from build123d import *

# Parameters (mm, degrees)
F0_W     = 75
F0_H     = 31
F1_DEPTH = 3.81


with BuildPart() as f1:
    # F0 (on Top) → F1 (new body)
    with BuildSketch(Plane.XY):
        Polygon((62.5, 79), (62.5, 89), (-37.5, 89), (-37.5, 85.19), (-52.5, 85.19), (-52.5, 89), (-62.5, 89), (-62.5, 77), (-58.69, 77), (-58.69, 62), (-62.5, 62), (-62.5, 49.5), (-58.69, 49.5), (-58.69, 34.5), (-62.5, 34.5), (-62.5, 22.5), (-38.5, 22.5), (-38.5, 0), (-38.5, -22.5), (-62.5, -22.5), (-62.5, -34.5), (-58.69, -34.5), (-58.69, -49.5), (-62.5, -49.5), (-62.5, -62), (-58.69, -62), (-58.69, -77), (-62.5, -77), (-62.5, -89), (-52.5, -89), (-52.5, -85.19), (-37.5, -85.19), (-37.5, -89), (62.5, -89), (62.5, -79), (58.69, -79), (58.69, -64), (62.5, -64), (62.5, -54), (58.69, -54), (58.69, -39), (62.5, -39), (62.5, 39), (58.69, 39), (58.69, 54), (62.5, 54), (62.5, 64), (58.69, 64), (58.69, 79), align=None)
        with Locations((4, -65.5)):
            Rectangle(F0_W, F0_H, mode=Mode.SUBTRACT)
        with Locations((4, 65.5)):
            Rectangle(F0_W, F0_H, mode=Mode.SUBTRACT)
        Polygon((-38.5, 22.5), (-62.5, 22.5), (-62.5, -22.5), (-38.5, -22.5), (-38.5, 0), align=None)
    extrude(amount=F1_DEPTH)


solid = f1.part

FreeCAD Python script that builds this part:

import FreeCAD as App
import Part
import Sketcher
from FreeCAD import Vector


def add_polygon(sketch, points):
    """Adds a closed chain of lines whose ends are joined by coincident constraints."""
    first, n = sketch.GeometryCount, len(points)
    for a, b in zip(points, points[1:] + points[:1]):
        sketch.addGeometry(Part.LineSegment(App.Vector(*a, 0), App.Vector(*b, 0)), False)
    for i in range(n):
        sketch.addConstraint(Sketcher.Constraint("Coincident", first + i, 2, first + (i + 1) % n, 1))

doc = App.newDocument("Part")
params = doc.addObject("Spreadsheet::Sheet", "Params")
for row, (alias, value) in enumerate([
    ("sketch1_width", "100 mm"),
    ("sketch1_width2", "15 mm"),
    ("sketch1_width3", "10 mm"),
    ("sketch1_width4", "75 mm"),
    ("sketch1_height", "12 mm"),
    ("pad1_length", "3.81 mm"),
], start=1):
    params.set(f"A{row}", alias)
    params.set(f"B{row}", "=" + value)
    params.setAlias(f"B{row}", alias)

body = doc.addObject("PartDesign::Body", "Body")

sketch1 = body.newObject("Sketcher::SketchObject", "Sketch")
sketch1.AttachmentSupport = (doc.getObject("XY_Plane"), [""])
sketch1.MapMode = "FlatFace"
add_polygon(sketch1, [(62.5, 79), (62.5, 89), (-37.5, 89), (-37.5, 85.2), (-52.5, 85.2), (-52.5, 89), (-62.5, 89), (-62.5, 77), (-58.7, 77), (-58.7, 62), (-62.5, 62), (-62.5, 49.5), (-58.7, 49.5), (-58.7, 34.5), (-62.5, 34.5), (-62.5, -34.5), (-58.7, -34.5), (-58.7, -49.5), (-62.5, -49.5), (-62.5, -62), (-58.7, -62), (-58.7, -77), (-62.5, -77), (-62.5, -89), (-52.5, -89), (-52.5, -85.2), (-37.5, -85.2), (-37.5, -89), (62.5, -89), (62.5, -79), (58.7, -79), (58.7, -64), (62.5, -64), (62.5, -54), (58.7, -54), (58.7, -39), (62.5, -39), (62.5, 39), (58.7, 39), (58.7, 54), (62.5, 54), (62.5, 64), (58.7, 64), (58.7, 79)])
add_polygon(sketch1, [(41.5, -81), (-33.5, -81), (-33.5, -50), (41.5, -50)])
add_polygon(sketch1, [(41.5, 50), (-33.5, 50), (-33.5, 81), (41.5, 81)])
sketch1.addConstraint(Sketcher.Constraint("Vertical", 0))
sketch1.addConstraint(Sketcher.Constraint("Horizontal", 1))
sketch1.addConstraint(Sketcher.Constraint("Vertical", 2))
sketch1.addConstraint(Sketcher.Constraint("Horizontal", 3))
sketch1.addConstraint(Sketcher.Constraint("Vertical", 4))
sketch1.addConstraint(Sketcher.Constraint("Horizontal", 5))
sketch1.addConstraint(Sketcher.Constraint("Vertical", 6))
sketch1.addConstraint(Sketcher.Constraint("Horizontal", 7))
sketch1.addConstraint(Sketcher.Constraint("Vertical", 8))
sketch1.addConstraint(Sketcher.Constraint("Horizontal", 9))
sketch1.addConstraint(Sketcher.Constraint("Vertical", 10))
sketch1.addConstraint(Sketcher.Constraint("Horizontal", 11))
sketch1.addConstraint(Sketcher.Constraint("Vertical", 12))
sketch1.addConstraint(Sketcher.Constraint("Horizontal", 13))
sketch1.addConstraint(Sketcher.Constraint("Vertical", 14))
sketch1.addConstraint(Sketcher.Constraint("Horizontal", 15))
sketch1.addConstraint(Sketcher.Constraint("Vertical", 16))
sketch1.addConstraint(Sketcher.Constraint("Horizontal", 17))
sketch1.addConstraint(Sketcher.Constraint("Vertical", 18))
sketch1.addConstraint(Sketcher.Constraint("Horizontal", 19))
sketch1.addConstraint(Sketcher.Constraint("Vertical", 20))
sketch1.addConstraint(Sketcher.Constraint("Horizontal", 21))
sketch1.addConstraint(Sketcher.Constraint("Vertical", 22))
sketch1.addConstraint(Sketcher.Constraint("Horizontal", 23))
sketch1.addConstraint(Sketcher.Constraint("Vertical", 24))
sketch1.addConstraint(Sketcher.Constraint("Horizontal", 25))
sketch1.addConstraint(Sketcher.Constraint("Vertical", 26))
sketch1.addConstraint(Sketcher.Constraint("Horizontal", 27))
sketch1.addConstraint(Sketcher.Constraint("Vertical", 28))
sketch1.addConstraint(Sketcher.Constraint("Horizontal", 29))
sketch1.addConstraint(Sketcher.Constraint("Vertical", 30))
sketch1.addConstraint(Sketcher.Constraint("Horizontal", 31))
sketch1.addConstraint(Sketcher.Constraint("Vertical", 32))
sketch1.addConstraint(Sketcher.Constraint("Horizontal", 33))
sketch1.addConstraint(Sketcher.Constraint("Vertical", 34))
sketch1.addConstraint(Sketcher.Constraint("Horizontal", 35))
sketch1.addConstraint(Sketcher.Constraint("Vertical", 36))
sketch1.addConstraint(Sketcher.Constraint("Horizontal", 37))
sketch1.addConstraint(Sketcher.Constraint("Vertical", 38))
sketch1.addConstraint(Sketcher.Constraint("Horizontal", 39))
sketch1.addConstraint(Sketcher.Constraint("Vertical", 40))
sketch1.addConstraint(Sketcher.Constraint("Horizontal", 41))
sketch1.addConstraint(Sketcher.Constraint("Vertical", 42))
sketch1.addConstraint(Sketcher.Constraint("Horizontal", 43))
sketch1.addConstraint(Sketcher.Constraint("Horizontal", 44))
sketch1.addConstraint(Sketcher.Constraint("Vertical", 45))
sketch1.addConstraint(Sketcher.Constraint("Horizontal", 46))
sketch1.addConstraint(Sketcher.Constraint("Vertical", 47))
sketch1.addConstraint(Sketcher.Constraint("Horizontal", 48))
sketch1.addConstraint(Sketcher.Constraint("Vertical", 49))
sketch1.addConstraint(Sketcher.Constraint("Horizontal", 50))
sketch1.addConstraint(Sketcher.Constraint("Vertical", 51))
sketch1.addConstraint(Sketcher.Constraint("Symmetric", 0, 2, 22, 2, -1, 1))
sketch1.addConstraint(Sketcher.Constraint("Symmetric", 5, 2, 27, 2, -1, 1))
sketch1.addConstraint(Sketcher.Constraint("Symmetric", 0, 2, 5, 2, -2))
sketch1.addConstraint(Sketcher.Constraint("Symmetric", 12, 2, 15, 2, -1))
sketch1.addConstraint(Sketcher.Constraint("Symmetric", 10, 2, 17, 2, -1))
sketch1.addConstraint(Sketcher.Constraint("Symmetric", 8, 2, 19, 2, -1))
sketch1.addConstraint(Sketcher.Constraint("Symmetric", 3, 2, 24, 2, -1))
sketch1.addConstraint(Sketcher.Constraint("Symmetric", 34, 2, 37, 2, -1))
sketch1.addConstraint(Sketcher.Constraint("Symmetric", 32, 2, 39, 2, -1))
sketch1.addConstraint(Sketcher.Constraint("Symmetric", 30, 2, 41, 2, -1))
sketch1.addConstraint(Sketcher.Constraint("Symmetric", 45, 2, 48, 2, -1))
sketch1.addConstraint(Sketcher.Constraint("Symmetric", 47, 2, 50, 2, -1))
sketch1.addConstraint(Sketcher.Constraint("Vertical", 6, 2, 9, 2))
sketch1.addConstraint(Sketcher.Constraint("Vertical", 8, 2, 11, 2))
sketch1.addConstraint(Sketcher.Constraint("Vertical", 10, 2, 13, 2))
sketch1.addConstraint(Sketcher.Constraint("Vertical", 2, 2, 25, 2))
sketch1.addConstraint(Sketcher.Constraint("Vertical", 28, 2, 31, 2))
sketch1.addConstraint(Sketcher.Constraint("Vertical", 30, 2, 33, 2))
sketch1.addConstraint(Sketcher.Constraint("Vertical", 32, 2, 35, 2))
sketch1.addConstraint(Sketcher.Constraint("Equal", 21, 29))
sketch1.addConstraint(Sketcher.Constraint("Equal", 23, 0))
sketch1.addConstraint(Sketcher.Constraint("Equal", 43, 2))
sketch1.addConstraint(Sketcher.Constraint("Equal", 25, 8))
sketch1.addConstraint(Sketcher.Constraint("Equal", 8, 12))
sketch1.addConstraint(Sketcher.Constraint("Equal", 16, 20))
sketch1.addConstraint(Sketcher.Constraint("Equal", 0, 28))
sketch1.addConstraint(Sketcher.Constraint("Equal", 20, 30))
sketch1.addConstraint(Sketcher.Constraint("Equal", 28, 32))
sketch1.addConstraint(Sketcher.Constraint("Equal", 30, 34))
sketch1.addConstraint(Sketcher.Constraint("DistanceX", 1, 2, 1, 1, 100.0))
sketch1.addConstraint(Sketcher.Constraint("DistanceX", 3, 2, 3, 1, 15.0))
sketch1.addConstraint(Sketcher.Constraint("DistanceX", 5, 2, 5, 1, 10.0))
sketch1.addConstraint(Sketcher.Constraint("DistanceX", 44, 2, 44, 1, 75.0))
sketch1.addConstraint(Sketcher.Constraint("DistanceY", 6, 2, 6, 1, 12.0))
sketch1.addConstraint(Sketcher.Constraint("DistanceY", 14, 2, 14, 1, 69.0))
sketch1.addConstraint(Sketcher.Constraint("DistanceY", 36, 1, 36, 2, 78.0))
sketch1.addConstraint(Sketcher.Constraint("DistanceY", 45, 1, 45, 2, 31.0))
sketch1.addConstraint(Sketcher.Constraint("DistanceY", 44, 2, -1, 1, 81.0))
sketch1.addConstraint(Sketcher.Constraint("DistanceX", 25, 2, 44, 2, 4.0))
sketch1.addConstraint(Sketcher.Constraint("DistanceX", 7, 1, 7, 2, 3.81))
sketch1.setExpression("Constraints[133]", "Params.sketch1_width")
sketch1.setExpression("Constraints[134]", "Params.sketch1_width2")
sketch1.setExpression("Constraints[135]", "Params.sketch1_width3")
sketch1.setExpression("Constraints[136]", "Params.sketch1_width4")
sketch1.setExpression("Constraints[137]", "Params.sketch1_height")
pad1 = body.newObject("PartDesign::Pad", "Pad")
pad1.Profile = sketch1
pad1.setExpression("Length", "Params.pad1_length")

doc.recompute()
